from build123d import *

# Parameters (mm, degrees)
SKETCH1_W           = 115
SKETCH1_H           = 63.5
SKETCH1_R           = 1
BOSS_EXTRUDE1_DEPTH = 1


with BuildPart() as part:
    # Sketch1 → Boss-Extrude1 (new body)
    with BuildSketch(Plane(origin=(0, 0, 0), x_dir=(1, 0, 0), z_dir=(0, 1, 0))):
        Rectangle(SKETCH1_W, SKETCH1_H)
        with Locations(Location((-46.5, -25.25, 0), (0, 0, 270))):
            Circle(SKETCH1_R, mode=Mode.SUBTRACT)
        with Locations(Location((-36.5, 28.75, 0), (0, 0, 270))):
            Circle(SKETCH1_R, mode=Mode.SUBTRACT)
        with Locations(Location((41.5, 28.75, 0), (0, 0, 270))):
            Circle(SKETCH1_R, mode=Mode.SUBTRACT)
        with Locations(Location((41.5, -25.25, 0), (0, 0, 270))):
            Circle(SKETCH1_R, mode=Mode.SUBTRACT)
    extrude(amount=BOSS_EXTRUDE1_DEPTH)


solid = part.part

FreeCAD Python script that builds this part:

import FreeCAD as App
import Part
import Sketcher

V = App.Vector

doc = App.newDocument("Part")
body = doc.addObject("PartDesign::Body", "Body")

# Sketch on XZ plane
sketch1 = doc.addObject("Sketcher::SketchObject", "Sketch")
body.addObject(sketch1)
sketch1.AttachmentSupport = (doc.XZ_Plane, [""])
sketch1.MapMode = "FlatFace"
sketch1.addGeometry([
    Part.LineSegment(V(-57.5, -31.8, 0), V(-57.5, 31.8, 0)),  # 0
    Part.LineSegment(V(-57.5, 31.8, 0), V(57.5, 31.8, 0)),  # 1
    Part.LineSegment(V(57.5, 31.8, 0), V(57.5, -31.8, 0)),  # 2
    Part.LineSegment(V(57.5, -31.8, 0), V(-57.5, -31.8, 0)),  # 3
    Part.Circle(V(-46.5, 25.2, 0), V(0, 0, 1), 1),  # 4
    Part.Circle(V(41.5, 25.2, 0), V(0, 0, 1), 1),  # 5
    Part.Circle(V(-36.5, -28.8, 0), V(0, 0, 1), 1),  # 6
    Part.Circle(V(41.5, -28.8, 0), V(0, 0, 1), 1),  # 7
], False)
sketch1.addConstraint([
    Sketcher.Constraint("Coincident", 0, 2, 1, 1),
    Sketcher.Constraint("Coincident", 1, 2, 2, 1),
    Sketcher.Constraint("Coincident", 2, 2, 3, 1),
    Sketcher.Constraint("Coincident", 3, 2, 0, 1),
    Sketcher.Constraint("Vertical", 0),
    Sketcher.Constraint("Horizontal", 1),
    Sketcher.Constraint("Vertical", 2),
    Sketcher.Constraint("Horizontal", 3),
    Sketcher.Constraint("Equal", 4, 5),
    Sketcher.Constraint("Equal", 5, 6),
    Sketcher.Constraint("Equal", 6, 7),
    Sketcher.Constraint("Symmetric", 0, 2, 2, 2, -1, 1),
    Sketcher.Constraint("Horizontal", 4, 3, 5, 3),
    Sketcher.Constraint("Horizontal", 6, 3, 7, 3),
    Sketcher.Constraint("Vertical", 5, 3, 7, 3),
    Sketcher.Constraint("Diameter", 4, 2.0),
    Sketcher.Constraint("DistanceX", 1, 1, 1, 2, 115.0),
    Sketcher.Constraint("DistanceY", 0, 1, 0, 2, 63.5),
    Sketcher.Constraint("DistanceX", 4, 3, 5, 3, 88.0),
    Sketcher.Constraint("DistanceX", 4, 3, 6, 3, 10.0),
    Sketcher.Constraint("DistanceY", 6, 3, 4, 3, 54.0),
    Sketcher.Constraint("DistanceX", 0, 2, 4, 3, 11.0),
    Sketcher.Constraint("DistanceY", 2, 2, 7, 3, 3.0),
])
pad1 = doc.addObject("PartDesign::Pad", "Pad")
body.addObject(pad1)
pad1.Profile = sketch1
pad1.Length = 1
pad1.Reversed = True

doc.recompute()
